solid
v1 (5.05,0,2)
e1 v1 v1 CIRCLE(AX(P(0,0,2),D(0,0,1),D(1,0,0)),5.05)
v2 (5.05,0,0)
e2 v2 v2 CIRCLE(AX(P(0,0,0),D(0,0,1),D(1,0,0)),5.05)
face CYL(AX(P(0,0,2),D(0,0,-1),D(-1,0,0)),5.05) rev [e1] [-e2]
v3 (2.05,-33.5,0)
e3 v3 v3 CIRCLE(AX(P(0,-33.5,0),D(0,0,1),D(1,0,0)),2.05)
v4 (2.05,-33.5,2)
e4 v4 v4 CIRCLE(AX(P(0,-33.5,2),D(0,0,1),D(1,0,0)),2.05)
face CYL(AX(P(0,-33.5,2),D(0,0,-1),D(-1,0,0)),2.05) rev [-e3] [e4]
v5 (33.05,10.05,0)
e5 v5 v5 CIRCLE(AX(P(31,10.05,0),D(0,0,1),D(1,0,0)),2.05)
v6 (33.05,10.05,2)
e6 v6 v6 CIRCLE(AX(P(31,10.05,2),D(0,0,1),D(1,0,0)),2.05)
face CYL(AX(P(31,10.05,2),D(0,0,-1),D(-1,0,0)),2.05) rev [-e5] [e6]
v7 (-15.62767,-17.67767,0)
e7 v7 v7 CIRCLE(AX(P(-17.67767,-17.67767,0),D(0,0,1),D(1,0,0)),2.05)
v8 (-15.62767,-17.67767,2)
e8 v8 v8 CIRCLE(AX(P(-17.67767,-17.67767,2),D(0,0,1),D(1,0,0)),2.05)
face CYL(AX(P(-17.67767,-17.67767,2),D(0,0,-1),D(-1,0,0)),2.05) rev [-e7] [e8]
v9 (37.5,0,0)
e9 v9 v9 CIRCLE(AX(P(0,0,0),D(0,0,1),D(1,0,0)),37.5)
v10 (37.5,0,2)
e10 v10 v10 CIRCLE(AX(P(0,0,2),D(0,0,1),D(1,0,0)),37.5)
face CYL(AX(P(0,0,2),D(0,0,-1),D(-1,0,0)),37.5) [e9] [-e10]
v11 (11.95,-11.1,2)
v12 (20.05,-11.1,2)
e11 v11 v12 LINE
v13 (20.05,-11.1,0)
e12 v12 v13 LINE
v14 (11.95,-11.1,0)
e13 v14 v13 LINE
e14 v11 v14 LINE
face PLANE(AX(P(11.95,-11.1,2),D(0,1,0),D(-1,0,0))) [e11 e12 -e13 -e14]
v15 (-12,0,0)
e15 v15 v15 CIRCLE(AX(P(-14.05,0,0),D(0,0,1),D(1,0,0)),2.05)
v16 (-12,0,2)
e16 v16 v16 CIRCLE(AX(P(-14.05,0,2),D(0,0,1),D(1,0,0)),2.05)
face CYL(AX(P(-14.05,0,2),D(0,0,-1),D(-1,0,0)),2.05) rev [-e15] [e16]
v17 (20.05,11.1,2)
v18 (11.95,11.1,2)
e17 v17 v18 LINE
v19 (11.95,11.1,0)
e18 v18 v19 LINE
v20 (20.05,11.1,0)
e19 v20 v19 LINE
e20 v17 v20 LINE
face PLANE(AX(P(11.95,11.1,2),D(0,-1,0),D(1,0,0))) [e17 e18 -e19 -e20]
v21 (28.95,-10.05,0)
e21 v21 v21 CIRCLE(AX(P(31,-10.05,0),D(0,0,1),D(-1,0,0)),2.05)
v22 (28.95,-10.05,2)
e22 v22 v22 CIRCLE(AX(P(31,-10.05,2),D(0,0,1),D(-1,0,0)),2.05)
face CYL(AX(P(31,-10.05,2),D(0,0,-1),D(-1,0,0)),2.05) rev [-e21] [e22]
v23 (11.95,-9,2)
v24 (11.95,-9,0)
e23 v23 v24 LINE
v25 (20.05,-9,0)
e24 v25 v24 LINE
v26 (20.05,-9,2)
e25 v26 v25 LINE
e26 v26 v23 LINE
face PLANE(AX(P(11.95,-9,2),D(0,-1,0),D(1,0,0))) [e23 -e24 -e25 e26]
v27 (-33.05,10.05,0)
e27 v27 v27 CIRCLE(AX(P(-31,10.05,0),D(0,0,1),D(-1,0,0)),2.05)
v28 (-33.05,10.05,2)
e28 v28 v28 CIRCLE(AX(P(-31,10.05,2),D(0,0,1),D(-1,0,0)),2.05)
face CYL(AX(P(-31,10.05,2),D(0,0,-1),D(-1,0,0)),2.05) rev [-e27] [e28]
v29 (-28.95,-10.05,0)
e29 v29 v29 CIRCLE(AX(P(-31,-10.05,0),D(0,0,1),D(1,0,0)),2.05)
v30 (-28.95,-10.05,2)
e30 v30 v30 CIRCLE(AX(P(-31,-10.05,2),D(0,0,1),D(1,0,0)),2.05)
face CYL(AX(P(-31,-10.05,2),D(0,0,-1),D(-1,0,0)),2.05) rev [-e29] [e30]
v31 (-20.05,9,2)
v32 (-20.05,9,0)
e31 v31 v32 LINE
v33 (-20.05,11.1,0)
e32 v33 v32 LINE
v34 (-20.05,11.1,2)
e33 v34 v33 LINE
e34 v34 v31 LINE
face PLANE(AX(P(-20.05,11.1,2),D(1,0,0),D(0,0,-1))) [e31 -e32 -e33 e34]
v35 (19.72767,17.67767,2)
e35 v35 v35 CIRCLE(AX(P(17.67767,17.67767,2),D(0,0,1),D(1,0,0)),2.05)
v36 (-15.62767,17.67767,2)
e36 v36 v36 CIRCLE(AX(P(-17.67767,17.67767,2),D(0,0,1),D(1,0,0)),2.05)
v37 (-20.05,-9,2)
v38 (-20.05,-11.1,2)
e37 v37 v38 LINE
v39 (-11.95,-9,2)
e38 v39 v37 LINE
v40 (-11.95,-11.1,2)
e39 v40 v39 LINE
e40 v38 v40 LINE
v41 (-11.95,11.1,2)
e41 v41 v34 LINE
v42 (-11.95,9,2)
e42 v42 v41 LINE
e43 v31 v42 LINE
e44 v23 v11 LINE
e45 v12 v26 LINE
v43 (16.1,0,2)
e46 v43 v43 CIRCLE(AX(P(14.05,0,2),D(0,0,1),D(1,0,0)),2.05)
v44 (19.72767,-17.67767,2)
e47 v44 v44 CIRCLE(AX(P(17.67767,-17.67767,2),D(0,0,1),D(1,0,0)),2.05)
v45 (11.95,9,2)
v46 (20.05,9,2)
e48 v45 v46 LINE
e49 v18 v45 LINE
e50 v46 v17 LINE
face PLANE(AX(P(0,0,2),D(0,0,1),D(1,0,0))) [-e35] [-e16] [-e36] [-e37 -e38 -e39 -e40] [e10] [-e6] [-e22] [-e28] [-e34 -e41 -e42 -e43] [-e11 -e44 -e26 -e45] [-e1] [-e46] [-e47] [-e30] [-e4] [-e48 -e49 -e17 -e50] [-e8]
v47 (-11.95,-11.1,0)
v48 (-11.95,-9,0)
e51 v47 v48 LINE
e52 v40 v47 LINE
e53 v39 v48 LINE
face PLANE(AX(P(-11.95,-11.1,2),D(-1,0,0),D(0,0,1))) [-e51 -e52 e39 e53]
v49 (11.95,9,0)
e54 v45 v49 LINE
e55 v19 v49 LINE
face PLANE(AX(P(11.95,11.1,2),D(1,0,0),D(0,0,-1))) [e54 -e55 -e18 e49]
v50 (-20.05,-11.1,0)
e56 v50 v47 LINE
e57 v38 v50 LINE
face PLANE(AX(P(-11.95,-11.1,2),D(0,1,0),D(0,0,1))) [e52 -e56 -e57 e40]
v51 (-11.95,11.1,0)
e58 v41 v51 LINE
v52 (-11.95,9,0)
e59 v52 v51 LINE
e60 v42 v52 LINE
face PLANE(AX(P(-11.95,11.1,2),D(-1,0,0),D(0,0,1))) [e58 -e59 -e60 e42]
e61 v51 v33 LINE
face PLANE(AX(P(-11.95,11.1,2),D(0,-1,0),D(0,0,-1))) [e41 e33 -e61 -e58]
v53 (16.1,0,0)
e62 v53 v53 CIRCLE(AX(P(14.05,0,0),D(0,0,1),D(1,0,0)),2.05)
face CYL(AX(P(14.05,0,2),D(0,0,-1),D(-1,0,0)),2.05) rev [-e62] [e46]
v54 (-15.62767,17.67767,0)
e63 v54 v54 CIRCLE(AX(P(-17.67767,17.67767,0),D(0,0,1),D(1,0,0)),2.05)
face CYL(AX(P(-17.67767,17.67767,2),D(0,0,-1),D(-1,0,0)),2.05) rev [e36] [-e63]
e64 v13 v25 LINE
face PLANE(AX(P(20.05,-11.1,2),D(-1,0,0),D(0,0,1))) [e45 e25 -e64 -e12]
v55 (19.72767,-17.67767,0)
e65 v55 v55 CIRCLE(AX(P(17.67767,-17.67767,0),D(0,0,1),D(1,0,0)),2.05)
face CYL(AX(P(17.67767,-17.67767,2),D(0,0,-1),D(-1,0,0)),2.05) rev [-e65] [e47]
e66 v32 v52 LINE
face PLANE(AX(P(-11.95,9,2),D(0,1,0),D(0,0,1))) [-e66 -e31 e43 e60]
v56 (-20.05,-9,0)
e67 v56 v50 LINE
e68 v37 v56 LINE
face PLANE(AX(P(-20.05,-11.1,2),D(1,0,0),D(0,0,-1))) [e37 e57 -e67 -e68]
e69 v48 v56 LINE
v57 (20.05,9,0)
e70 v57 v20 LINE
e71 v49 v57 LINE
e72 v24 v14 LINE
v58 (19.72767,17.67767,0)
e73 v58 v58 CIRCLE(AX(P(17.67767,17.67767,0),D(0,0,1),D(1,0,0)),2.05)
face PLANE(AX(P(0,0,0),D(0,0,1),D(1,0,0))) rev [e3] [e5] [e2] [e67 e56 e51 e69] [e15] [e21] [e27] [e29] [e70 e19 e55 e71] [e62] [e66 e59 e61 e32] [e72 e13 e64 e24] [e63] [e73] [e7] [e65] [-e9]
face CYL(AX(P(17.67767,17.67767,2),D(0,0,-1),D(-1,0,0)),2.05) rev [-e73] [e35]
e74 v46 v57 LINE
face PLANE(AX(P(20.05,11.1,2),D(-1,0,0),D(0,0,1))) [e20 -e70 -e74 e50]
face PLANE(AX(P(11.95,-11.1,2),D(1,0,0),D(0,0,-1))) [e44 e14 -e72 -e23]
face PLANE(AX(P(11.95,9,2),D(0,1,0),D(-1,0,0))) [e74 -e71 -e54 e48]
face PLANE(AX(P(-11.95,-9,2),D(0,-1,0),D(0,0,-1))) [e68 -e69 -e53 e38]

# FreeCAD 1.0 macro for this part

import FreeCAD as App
import Part
import Sketcher
Q = App.Units.Quantity

doc = App.newDocument("Part")
body = doc.addObject("PartDesign::Body", "Body")

sketch1 = body.newObject("Sketcher::SketchObject", "Sketch")
sketch1.AttachmentSupport = (doc.getObject("XY_Plane"), [""])
sketch1.MapMode = "FlatFace"
sketch1.addGeometry([
    Part.Circle(App.Vector(0, 0, 0), App.Vector(0, 0, 1), 37.5),
    Part.Circle(App.Vector(-17.7, -17.7, 0), App.Vector(0, 0, 1), 2),
    Part.Circle(App.Vector(-31, -10.1, 0), App.Vector(0, 0, 1), 2),
    Part.LineSegment(App.Vector(-11.9, -11.1, 0), App.Vector(-20.1, -11.1, 0)),
    Part.LineSegment(App.Vector(-20.1, -11.1, 0), App.Vector(-20.1, -9, 0)),
    Part.LineSegment(App.Vector(-20.1, -9, 0), App.Vector(-11.9, -9, 0)),
    Part.LineSegment(App.Vector(-11.9, -9, 0), App.Vector(-11.9, -11.1, 0)),
    Part.Circle(App.Vector(0, -33.5, 0), App.Vector(0, 0, 1), 2),
    Part.LineSegment(App.Vector(20.1, -11.1, 0), App.Vector(11.9, -11.1, 0)),
    Part.LineSegment(App.Vector(11.9, -11.1, 0), App.Vector(11.9, -9, 0)),
    Part.LineSegment(App.Vector(11.9, -9, 0), App.Vector(20.1, -9, 0)),
    Part.LineSegment(App.Vector(20.1, -9, 0), App.Vector(20.1, -11.1, 0)),
    Part.Circle(App.Vector(17.7, -17.7, 0), App.Vector(0, 0, 1), 2),
    Part.Circle(App.Vector(31, -10.1, 0), App.Vector(0, 0, 1), 2),
    Part.Circle(App.Vector(-14.1, 0, 0), App.Vector(0, 0, 1), 2),
    Part.Circle(App.Vector(-31, 10.1, 0), App.Vector(0, 0, 1), 2),
    Part.Circle(App.Vector(-17.7, 17.7, 0), App.Vector(0, 0, 1), 2),
    Part.LineSegment(App.Vector(-11.9, 9, 0), App.Vector(-20.1, 9, 0)),
    Part.LineSegment(App.Vector(-20.1, 9, 0), App.Vector(-20.1, 11.1, 0)),
    Part.LineSegment(App.Vector(-20.1, 11.1, 0), App.Vector(-11.9, 11.1, 0)),
    Part.LineSegment(App.Vector(-11.9, 11.1, 0), App.Vector(-11.9, 9, 0)),
    Part.Circle(App.Vector(0, 0, 0), App.Vector(0, 0, 1), 5),
    Part.Circle(App.Vector(14.1, 0, 0), App.Vector(0, 0, 1), 2),
    Part.LineSegment(App.Vector(20.1, 9, 0), App.Vector(11.9, 9, 0)),
    Part.LineSegment(App.Vector(11.9, 9, 0), App.Vector(11.9, 11.1, 0)),
    Part.LineSegment(App.Vector(11.9, 11.1, 0), App.Vector(20.1, 11.1, 0)),
    Part.LineSegment(App.Vector(20.1, 11.1, 0), App.Vector(20.1, 9, 0)),
    Part.Circle(App.Vector(31, 10.1, 0), App.Vector(0, 0, 1), 2),
    Part.Circle(App.Vector(17.7, 17.7, 0), App.Vector(0, 0, 1), 2),
], False)
sketch1.addConstraint([
    Sketcher.Constraint("Coincident", 3, 2, 4, 1),
    Sketcher.Constraint("Coincident", 4, 2, 5, 1),
    Sketcher.Constraint("Coincident", 5, 2, 6, 1),
    Sketcher.Constraint("Coincident", 6, 2, 3, 1),
    Sketcher.Constraint("Coincident", 8, 2, 9, 1),
    Sketcher.Constraint("Coincident", 9, 2, 10, 1),
    Sketcher.Constraint("Coincident", 10, 2, 11, 1),
    Sketcher.Constraint("Coincident", 11, 2, 8, 1),
    Sketcher.Constraint("Coincident", 17, 2, 18, 1),
    Sketcher.Constraint("Coincident", 18, 2, 19, 1),
    Sketcher.Constraint("Coincident", 19, 2, 20, 1),
    Sketcher.Constraint("Coincident", 20, 2, 17, 1),
    Sketcher.Constraint("Coincident", 23, 2, 24, 1),
    Sketcher.Constraint("Coincident", 24, 2, 25, 1),
    Sketcher.Constraint("Coincident", 25, 2, 26, 1),
    Sketcher.Constraint("Coincident", 26, 2, 23, 1),
    Sketcher.Constraint("Horizontal", 3),
    Sketcher.Constraint("Vertical", 4),
    Sketcher.Constraint("Horizontal", 5),
    Sketcher.Constraint("Vertical", 6),
    Sketcher.Constraint("Horizontal", 8),
    Sketcher.Constraint("Vertical", 9),
    Sketcher.Constraint("Horizontal", 10),
    Sketcher.Constraint("Vertical", 11),
    Sketcher.Constraint("Horizontal", 17),
    Sketcher.Constraint("Vertical", 18),
    Sketcher.Constraint("Horizontal", 19),
    Sketcher.Constraint("Vertical", 20),
    Sketcher.Constraint("Horizontal", 23),
    Sketcher.Constraint("Vertical", 24),
    Sketcher.Constraint("Horizontal", 25),
    Sketcher.Constraint("Vertical", 26),
    Sketcher.Constraint("Coincident", 0, 3, -1, 1),
    Sketcher.Constraint("Coincident", 21, 3, -1, 1),
    Sketcher.Constraint("Equal", 1, 2),
    Sketcher.Constraint("Equal", 2, 7),
    Sketcher.Constraint("Equal", 7, 12),
    Sketcher.Constraint("Equal", 12, 13),
    Sketcher.Constraint("Equal", 13, 14),
    Sketcher.Constraint("Equal", 14, 15),
    Sketcher.Constraint("Equal", 15, 16),
    Sketcher.Constraint("Equal", 16, 22),
    Sketcher.Constraint("Equal", 22, 27),
    Sketcher.Constraint("Equal", 27, 28),
    Sketcher.Constraint("Symmetric", 13, 3, 15, 3, -1, 1),
    Sketcher.Constraint("Symmetric", 12, 3, 16, 3, -1, 1),
    Sketcher.Constraint("Symmetric", 14, 3, 22, 3, -1, 1),
    Sketcher.Constraint("Symmetric", 2, 3, 27, 3, -1, 1),
    Sketcher.Constraint("Symmetric", 1, 3, 28, 3, -1, 1),
    Sketcher.Constraint("Symmetric", 10, 2, 17, 2, -1, 1),
    Sketcher.Constraint("Symmetric", 8, 2, 19, 2, -1, 1),
    Sketcher.Constraint("Symmetric", 5, 2, 23, 2, -1, 1),
    Sketcher.Constraint("Symmetric", 3, 2, 25, 2, -1, 1),
    Sketcher.Constraint("Symmetric", 1, 3, 12, 3, -2),
    Sketcher.Constraint("Symmetric", 2, 3, 13, 3, -2),
    Sketcher.Constraint("Symmetric", 6, 2, 8, 2, -2),
    Sketcher.Constraint("Symmetric", 4, 2, 10, 2, -2),
    Sketcher.Constraint("PointOnObject", 7, 3, -2),
    Sketcher.Constraint("PointOnObject", 14, 3, -1),
    Sketcher.Constraint("Diameter", 0, Q("75 mm")),
    Sketcher.Constraint("Diameter", 1, Q("4.1 mm")),
    Sketcher.Constraint("Diameter", 21, Q("10.1 mm")),
    Sketcher.Constraint("DistanceX", 3, 2, 3, 1, Q("8.1 mm")),
    Sketcher.Constraint("DistanceY", 4, 1, 4, 2, Q("2.1 mm")),
    Sketcher.Constraint("DistanceX", 2, 3, -1, 1, Q("31 mm")),
    Sketcher.Constraint("DistanceY", 4, 2, -1, 1, Q("9 mm")),
    Sketcher.Constraint("DistanceX", 3, 2, 14, 3, Q("6 mm")),
    Sketcher.Constraint("DistanceY", 7, 3, -1, 1, Q("33.5 mm")),
    Sketcher.Constraint("DistanceY", 2, 3, 15, 3, Q("20.1 mm")),
    Sketcher.Constraint("DistanceX", 14, 3, 22, 3, Q("28.1 mm")),
    Sketcher.Constraint("DistanceX", 1, 3, -1, 1, Q("17.67767 mm")),
    Sketcher.Constraint("DistanceY", 1, 3, -1, 1, Q("17.67767 mm")),
])
pad1 = body.newObject("PartDesign::Pad", "Pad")
pad1.Profile = sketch1
pad1.Length = 2

doc.recompute()
